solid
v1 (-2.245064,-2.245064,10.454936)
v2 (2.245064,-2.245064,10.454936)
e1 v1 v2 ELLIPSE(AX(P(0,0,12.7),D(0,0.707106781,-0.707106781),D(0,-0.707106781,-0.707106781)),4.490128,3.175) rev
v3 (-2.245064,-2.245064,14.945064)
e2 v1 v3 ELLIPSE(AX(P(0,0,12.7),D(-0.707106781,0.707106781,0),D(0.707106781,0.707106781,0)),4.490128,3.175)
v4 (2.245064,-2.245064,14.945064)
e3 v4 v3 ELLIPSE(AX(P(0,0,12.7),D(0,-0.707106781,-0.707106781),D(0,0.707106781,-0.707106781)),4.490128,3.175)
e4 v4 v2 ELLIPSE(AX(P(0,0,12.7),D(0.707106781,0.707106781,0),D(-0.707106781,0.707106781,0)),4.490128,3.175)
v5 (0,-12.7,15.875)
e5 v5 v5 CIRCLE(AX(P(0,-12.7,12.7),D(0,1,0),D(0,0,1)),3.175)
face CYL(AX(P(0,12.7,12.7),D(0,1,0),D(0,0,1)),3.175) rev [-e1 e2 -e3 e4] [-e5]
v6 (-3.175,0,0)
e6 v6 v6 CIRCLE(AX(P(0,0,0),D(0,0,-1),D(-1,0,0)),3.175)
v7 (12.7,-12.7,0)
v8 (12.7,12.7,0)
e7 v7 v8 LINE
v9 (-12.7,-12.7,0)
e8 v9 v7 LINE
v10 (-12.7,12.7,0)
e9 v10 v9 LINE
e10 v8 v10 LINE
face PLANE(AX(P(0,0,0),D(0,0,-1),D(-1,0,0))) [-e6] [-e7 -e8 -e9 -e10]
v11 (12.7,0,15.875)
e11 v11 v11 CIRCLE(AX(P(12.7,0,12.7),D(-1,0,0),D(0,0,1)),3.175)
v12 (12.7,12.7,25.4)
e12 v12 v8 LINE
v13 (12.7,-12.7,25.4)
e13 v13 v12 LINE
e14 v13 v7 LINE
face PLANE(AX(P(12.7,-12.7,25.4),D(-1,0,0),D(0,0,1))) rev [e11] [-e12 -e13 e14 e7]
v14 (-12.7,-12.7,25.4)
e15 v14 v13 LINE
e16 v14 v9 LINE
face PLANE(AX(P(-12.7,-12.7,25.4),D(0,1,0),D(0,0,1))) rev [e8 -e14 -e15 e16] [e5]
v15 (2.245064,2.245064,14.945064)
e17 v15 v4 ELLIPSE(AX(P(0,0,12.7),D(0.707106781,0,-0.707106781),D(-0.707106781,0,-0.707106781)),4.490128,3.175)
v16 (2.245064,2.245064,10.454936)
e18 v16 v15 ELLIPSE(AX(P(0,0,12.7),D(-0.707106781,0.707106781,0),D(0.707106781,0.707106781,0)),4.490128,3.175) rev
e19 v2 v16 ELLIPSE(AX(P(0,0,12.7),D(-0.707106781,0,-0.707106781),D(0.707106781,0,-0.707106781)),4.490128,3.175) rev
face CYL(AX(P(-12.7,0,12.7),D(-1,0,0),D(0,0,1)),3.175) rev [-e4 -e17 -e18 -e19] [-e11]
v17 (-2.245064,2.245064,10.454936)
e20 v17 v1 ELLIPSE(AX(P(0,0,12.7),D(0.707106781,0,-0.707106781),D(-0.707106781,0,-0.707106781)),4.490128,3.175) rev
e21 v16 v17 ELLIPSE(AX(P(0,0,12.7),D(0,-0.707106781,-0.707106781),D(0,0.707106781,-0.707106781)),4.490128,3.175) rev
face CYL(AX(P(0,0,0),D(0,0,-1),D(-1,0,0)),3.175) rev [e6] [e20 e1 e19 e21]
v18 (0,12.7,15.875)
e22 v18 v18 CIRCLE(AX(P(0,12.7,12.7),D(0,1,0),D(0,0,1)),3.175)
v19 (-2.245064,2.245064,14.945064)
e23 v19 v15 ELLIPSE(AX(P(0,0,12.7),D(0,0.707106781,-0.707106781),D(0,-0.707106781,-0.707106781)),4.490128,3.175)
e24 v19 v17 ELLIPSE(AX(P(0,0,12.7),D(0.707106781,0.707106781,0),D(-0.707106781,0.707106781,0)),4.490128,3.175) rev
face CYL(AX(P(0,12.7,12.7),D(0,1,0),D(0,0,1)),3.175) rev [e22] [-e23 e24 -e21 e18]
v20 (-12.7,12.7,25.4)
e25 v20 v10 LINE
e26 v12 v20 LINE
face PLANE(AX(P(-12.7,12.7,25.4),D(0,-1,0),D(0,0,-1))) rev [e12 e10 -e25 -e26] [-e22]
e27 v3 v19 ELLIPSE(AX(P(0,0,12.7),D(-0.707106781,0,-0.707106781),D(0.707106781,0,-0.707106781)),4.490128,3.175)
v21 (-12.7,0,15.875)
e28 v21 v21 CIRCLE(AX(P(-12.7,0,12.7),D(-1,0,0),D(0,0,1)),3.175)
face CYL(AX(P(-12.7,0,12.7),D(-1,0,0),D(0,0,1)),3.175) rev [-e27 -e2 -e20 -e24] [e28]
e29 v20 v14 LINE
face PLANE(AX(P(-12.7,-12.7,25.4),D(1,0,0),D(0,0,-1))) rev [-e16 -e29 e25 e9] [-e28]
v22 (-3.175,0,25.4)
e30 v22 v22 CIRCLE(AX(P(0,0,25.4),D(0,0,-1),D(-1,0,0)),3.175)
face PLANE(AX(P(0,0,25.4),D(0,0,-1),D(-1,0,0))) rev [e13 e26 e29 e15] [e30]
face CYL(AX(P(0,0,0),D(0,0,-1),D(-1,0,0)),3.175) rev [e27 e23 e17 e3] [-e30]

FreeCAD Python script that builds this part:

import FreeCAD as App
import Part
import Sketcher

V = App.Vector
Q = App.Units.Quantity

doc = App.newDocument("Part")
body = doc.addObject("PartDesign::Body", "Body")

sketch1 = doc.addObject("Sketcher::SketchObject", "Sketch")
body.addObject(sketch1)
sketch1.AttachmentSupport = (doc.XY_Plane, [""])
sketch1.MapMode = "FlatFace"
sketch1.addGeometry([
    Part.LineSegment(V(-12.7, 12.7, 0), V(-12.7, -12.7, 0)),
    Part.LineSegment(V(-12.7, -12.7, 0), V(12.7, -12.7, 0)),
    Part.LineSegment(V(12.7, -12.7, 0), V(12.7, 12.7, 0)),
    Part.LineSegment(V(12.7, 12.7, 0), V(-12.7, 12.7, 0)),
], False)
sketch1.addConstraint([
    Sketcher.Constraint("Coincident", 0, 2, 1, 1),
    Sketcher.Constraint("Coincident", 1, 2, 2, 1),
    Sketcher.Constraint("Coincident", 2, 2, 3, 1),
    Sketcher.Constraint("Coincident", 3, 2, 0, 1),
    Sketcher.Constraint("Vertical", 0),
    Sketcher.Constraint("Horizontal", 1),
    Sketcher.Constraint("Vertical", 2),
    Sketcher.Constraint("Horizontal", 3),
    Sketcher.Constraint("Symmetric", 0, 2, 2, 2, -1, 1),
    Sketcher.Constraint("Equal", 3, 0),
    Sketcher.Constraint("DistanceX", 1, 1, 1, 2, Q("1 in")),
])
pad1 = doc.addObject("PartDesign::Pad", "Pad")
body.addObject(pad1)
pad1.Profile = sketch1
pad1.Length = Q("1 in")

sketch2 = doc.addObject("Sketcher::SketchObject", "Sketch001")
body.addObject(sketch2)
sketch2.AttachmentSupport = (doc.XY_Plane, [""])
sketch2.MapMode = "FlatFace"
sketch2.addGeometry(Part.Circle(V(0, 0, 0), V(0, 0, 1), 3.175), False)
sketch2.addConstraint([
    Sketcher.Constraint("Coincident", 0, 3, -1, 1),
    Sketcher.Constraint("Diameter", 0, Q("0.25 in")),
])
doc.recompute()
hole = doc.addObject("PartDesign::Hole", "Hole")
body.addObject(hole)
hole.Profile = sketch2
hole.ThreadType = "None"
hole.Diameter = Q("0.25 in")
hole.DepthType = "ThroughAll"
hole.Reversed = True

sketch3 = doc.addObject("Sketcher::SketchObject", "Sketch002")
body.addObject(sketch3)
sketch3.AttachmentSupport = (doc.XZ_Plane, [""])
sketch3.MapMode = "FlatFace"
sketch3.AttachmentOffset = App.Placement(V(0, 0, -0.5 * 25.4), App.Rotation())
sketch3.addGeometry(Part.Circle(V(0, 12.7, 0), V(0, 0, 1), 3.175), False)
sketch3.addConstraint([
    Sketcher.Constraint("PointOnObject", 0, 3, -2),
    Sketcher.Constraint("Diameter", 0, Q("0.25 in")),
    Sketcher.Constraint("DistanceY", -1, 1, 0, 3, Q("0.5 in")),
])
doc.recompute()
hole2 = doc.addObject("PartDesign::Hole", "Hole001")
body.addObject(hole2)
hole2.Profile = sketch3
hole2.ThreadType = "None"
hole2.Diameter = Q("0.25 in")
hole2.DepthType = "ThroughAll"
hole2.Reversed = True

sketch4 = doc.addObject("Sketcher::SketchObject", "Sketch003")
body.addObject(sketch4)
sketch4.AttachmentSupport = (doc.YZ_Plane, [""])
sketch4.MapMode = "FlatFace"
sketch4.AttachmentOffset = App.Placement(V(0, 0, -0.5 * 25.4), App.Rotation())
sketch4.addGeometry(Part.Circle(V(0, 12.7, 0), V(0, 0, 1), 3.175), False)
sketch4.addConstraint([
    Sketcher.Constraint("PointOnObject", 0, 3, -2),
    Sketcher.Constraint("Diameter", 0, Q("0.25 in")),
    Sketcher.Constraint("DistanceY", -1, 1, 0, 3, Q("0.5 in")),
])
doc.recompute()
hole3 = doc.addObject("PartDesign::Hole", "Hole002")
body.addObject(hole3)
hole3.Profile = sketch4
hole3.ThreadType = "None"
hole3.Diameter = Q("0.25 in")
hole3.DepthType = "ThroughAll"
hole3.Reversed = True

doc.recompute()
